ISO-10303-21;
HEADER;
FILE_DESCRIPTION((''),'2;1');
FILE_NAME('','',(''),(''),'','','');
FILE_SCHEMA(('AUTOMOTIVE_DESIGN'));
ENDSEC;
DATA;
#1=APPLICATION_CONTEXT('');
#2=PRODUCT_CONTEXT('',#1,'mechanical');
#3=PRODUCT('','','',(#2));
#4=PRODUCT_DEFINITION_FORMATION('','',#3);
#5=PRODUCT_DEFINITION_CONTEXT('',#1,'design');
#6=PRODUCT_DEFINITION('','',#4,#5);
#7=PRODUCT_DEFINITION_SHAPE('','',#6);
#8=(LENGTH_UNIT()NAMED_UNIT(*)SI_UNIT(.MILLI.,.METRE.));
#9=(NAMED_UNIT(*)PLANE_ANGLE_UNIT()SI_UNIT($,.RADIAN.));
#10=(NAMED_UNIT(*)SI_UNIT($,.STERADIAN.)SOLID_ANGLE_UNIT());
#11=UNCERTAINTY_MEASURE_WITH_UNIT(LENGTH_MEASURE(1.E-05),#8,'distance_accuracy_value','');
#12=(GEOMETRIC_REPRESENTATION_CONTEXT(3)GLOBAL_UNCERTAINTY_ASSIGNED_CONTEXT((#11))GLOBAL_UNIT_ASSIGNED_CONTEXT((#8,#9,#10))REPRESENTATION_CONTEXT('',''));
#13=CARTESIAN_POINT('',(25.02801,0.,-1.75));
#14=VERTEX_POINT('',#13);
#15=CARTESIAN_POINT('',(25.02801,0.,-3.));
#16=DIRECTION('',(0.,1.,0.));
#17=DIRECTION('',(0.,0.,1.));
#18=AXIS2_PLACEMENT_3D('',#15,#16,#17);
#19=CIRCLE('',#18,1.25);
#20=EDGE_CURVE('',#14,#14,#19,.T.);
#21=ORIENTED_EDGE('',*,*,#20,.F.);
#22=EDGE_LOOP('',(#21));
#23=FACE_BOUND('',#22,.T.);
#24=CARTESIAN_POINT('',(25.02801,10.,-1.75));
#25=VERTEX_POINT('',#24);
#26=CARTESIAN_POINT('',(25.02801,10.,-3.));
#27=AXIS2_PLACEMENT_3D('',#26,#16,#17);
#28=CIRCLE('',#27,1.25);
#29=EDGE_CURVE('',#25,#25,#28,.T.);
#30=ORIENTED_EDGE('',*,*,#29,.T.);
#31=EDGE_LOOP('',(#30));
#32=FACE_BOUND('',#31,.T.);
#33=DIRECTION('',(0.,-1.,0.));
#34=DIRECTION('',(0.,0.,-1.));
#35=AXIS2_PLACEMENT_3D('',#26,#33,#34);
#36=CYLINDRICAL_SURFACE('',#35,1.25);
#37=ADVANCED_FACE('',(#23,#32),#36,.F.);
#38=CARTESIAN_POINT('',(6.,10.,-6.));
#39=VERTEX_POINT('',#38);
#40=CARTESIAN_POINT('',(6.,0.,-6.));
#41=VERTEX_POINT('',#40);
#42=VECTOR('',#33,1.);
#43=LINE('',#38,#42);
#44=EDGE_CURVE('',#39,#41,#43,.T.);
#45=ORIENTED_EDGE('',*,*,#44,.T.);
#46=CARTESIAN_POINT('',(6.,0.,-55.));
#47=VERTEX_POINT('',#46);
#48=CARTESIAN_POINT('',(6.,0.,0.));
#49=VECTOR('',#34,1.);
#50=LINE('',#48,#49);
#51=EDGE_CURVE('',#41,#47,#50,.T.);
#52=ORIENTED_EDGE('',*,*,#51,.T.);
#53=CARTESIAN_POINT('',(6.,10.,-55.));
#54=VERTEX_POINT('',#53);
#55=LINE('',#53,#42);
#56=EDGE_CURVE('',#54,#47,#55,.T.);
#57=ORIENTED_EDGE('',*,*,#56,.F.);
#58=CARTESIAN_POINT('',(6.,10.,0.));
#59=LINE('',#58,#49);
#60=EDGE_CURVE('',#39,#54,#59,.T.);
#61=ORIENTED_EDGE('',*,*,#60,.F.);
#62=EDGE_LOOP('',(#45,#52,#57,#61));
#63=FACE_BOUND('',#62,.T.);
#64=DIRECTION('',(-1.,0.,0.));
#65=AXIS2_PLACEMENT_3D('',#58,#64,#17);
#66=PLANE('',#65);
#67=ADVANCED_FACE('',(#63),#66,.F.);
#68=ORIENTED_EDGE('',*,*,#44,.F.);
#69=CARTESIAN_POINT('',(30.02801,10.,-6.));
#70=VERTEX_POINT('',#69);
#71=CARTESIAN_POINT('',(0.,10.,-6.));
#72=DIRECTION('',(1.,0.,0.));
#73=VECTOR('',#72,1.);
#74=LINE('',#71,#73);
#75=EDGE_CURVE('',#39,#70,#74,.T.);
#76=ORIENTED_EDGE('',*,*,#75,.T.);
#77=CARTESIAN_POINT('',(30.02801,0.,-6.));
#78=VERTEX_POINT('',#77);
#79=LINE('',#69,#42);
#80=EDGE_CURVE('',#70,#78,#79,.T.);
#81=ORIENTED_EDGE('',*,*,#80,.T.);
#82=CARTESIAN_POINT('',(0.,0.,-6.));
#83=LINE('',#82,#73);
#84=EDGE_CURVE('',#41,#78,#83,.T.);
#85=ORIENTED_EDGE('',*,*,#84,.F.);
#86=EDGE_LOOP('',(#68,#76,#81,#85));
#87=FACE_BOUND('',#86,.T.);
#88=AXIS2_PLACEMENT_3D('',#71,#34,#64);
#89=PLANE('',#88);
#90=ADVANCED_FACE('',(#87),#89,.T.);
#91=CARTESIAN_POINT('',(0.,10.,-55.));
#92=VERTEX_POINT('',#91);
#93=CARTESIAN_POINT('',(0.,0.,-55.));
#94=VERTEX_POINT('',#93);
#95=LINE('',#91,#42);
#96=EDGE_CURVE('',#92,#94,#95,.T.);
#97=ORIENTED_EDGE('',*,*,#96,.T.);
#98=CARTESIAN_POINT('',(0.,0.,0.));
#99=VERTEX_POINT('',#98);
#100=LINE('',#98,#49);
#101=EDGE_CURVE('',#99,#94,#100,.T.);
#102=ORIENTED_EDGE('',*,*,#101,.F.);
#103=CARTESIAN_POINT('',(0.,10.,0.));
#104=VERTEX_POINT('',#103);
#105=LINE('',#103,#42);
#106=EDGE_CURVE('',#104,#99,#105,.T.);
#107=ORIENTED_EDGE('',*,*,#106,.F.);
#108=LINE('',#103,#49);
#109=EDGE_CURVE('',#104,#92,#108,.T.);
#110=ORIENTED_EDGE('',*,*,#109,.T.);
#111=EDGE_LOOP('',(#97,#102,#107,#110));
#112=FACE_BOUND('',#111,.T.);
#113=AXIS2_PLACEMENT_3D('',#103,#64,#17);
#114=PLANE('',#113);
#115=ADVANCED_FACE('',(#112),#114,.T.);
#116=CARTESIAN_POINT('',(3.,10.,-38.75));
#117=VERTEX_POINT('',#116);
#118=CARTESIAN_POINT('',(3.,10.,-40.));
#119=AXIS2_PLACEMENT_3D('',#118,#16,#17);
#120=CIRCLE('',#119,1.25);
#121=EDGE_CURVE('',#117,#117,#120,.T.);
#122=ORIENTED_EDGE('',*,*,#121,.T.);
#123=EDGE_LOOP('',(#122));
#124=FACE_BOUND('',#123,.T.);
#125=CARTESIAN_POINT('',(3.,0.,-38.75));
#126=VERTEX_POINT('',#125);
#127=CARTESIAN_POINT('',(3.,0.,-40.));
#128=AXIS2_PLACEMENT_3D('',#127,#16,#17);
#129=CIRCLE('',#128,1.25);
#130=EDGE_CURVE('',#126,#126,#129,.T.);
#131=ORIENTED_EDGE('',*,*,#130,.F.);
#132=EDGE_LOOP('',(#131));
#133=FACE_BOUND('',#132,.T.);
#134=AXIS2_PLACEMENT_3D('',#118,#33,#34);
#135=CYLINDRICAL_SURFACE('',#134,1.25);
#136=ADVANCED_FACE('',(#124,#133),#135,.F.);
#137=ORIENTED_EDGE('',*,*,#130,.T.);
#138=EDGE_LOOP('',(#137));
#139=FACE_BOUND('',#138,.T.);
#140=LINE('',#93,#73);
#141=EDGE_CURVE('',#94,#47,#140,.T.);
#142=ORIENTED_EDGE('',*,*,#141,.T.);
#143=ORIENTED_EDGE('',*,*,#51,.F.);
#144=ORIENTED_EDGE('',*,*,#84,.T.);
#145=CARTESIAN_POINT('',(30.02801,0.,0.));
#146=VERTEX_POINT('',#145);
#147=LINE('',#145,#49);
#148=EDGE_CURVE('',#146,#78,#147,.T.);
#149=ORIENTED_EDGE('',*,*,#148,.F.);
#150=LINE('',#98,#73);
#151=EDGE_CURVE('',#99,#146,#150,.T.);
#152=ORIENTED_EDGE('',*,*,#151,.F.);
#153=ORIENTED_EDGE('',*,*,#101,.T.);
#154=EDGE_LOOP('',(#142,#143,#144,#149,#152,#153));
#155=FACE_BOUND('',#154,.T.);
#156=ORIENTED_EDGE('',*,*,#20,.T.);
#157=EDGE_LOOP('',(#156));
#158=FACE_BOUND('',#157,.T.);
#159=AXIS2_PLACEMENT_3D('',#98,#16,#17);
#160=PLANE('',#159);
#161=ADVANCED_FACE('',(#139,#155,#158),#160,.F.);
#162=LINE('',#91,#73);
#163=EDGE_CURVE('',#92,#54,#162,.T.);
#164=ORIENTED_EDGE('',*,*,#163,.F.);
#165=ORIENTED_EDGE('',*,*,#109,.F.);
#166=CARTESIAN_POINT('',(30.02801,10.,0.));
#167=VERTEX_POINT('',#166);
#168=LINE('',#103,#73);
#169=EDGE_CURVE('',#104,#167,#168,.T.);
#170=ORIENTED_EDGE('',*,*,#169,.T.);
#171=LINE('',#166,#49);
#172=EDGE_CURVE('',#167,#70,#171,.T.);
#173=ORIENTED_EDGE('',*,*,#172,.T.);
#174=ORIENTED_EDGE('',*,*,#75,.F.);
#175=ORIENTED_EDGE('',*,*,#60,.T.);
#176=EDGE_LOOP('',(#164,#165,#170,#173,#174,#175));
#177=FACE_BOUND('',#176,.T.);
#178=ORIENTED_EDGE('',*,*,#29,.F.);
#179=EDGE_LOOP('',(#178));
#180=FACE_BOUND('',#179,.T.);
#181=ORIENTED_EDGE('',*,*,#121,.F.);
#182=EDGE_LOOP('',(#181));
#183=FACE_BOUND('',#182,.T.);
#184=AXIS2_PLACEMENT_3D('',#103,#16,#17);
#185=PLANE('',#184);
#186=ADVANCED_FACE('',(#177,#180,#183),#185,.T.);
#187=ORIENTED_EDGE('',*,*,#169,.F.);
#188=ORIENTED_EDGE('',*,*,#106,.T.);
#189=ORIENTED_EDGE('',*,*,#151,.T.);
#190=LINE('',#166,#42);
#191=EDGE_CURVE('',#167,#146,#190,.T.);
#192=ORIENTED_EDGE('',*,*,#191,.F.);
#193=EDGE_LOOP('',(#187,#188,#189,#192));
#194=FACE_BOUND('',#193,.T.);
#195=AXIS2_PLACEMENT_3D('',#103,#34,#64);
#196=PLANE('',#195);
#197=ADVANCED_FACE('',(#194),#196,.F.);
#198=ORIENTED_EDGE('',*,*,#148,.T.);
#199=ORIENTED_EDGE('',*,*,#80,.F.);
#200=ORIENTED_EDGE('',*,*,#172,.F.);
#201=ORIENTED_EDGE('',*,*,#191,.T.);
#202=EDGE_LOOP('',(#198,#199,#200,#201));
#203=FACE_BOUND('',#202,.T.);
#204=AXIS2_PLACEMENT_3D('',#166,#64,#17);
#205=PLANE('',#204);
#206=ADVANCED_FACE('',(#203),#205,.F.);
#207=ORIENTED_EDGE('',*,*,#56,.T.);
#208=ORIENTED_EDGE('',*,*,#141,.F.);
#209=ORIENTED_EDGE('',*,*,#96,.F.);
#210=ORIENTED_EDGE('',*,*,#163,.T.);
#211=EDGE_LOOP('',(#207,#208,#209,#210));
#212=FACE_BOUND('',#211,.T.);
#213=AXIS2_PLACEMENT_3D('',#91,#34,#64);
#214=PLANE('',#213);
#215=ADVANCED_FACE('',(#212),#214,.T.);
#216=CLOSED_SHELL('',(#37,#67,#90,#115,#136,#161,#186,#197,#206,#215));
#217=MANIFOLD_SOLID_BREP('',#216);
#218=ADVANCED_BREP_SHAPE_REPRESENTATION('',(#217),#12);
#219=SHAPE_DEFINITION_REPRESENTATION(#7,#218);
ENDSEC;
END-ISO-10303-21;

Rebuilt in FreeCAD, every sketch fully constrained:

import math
import FreeCAD as App
import Part
import Sketcher
from FreeCAD import Vector
Q = App.Units.Quantity


def add_polygon(sketch, points):
    """Adds a closed chain of lines whose ends are joined by coincident constraints."""
    first, n = sketch.GeometryCount, len(points)
    for a, b in zip(points, points[1:] + points[:1]):
        sketch.addGeometry(Part.LineSegment(App.Vector(*a, 0), App.Vector(*b, 0)), False)
    for i in range(n):
        sketch.addConstraint(Sketcher.Constraint("Coincident", first + i, 2, first + (i + 1) % n, 1))

doc = App.newDocument("Part")
body = doc.addObject("PartDesign::Body", "Body")

# Sketch on XZ plane
sketch1 = doc.addObject("Sketcher::SketchObject", "Sketch")
body.addObject(sketch1)
sketch1.AttachmentSupport = (doc.XZ_Plane, [""])
sketch1.MapMode = "FlatFace"
add_polygon(sketch1, [(6, -55), (0, -55), (0, 0), (30, 0), (30, -6), (6, -6)])  # lines 0-5
sketch1.addGeometry(Part.ArcOfCircle(Part.Circle(Vector(3, -40, 0), Vector(0, 0, 1), 1.3), math.radians(-90), math.radians(0)), False)  # 6
sketch1.addGeometry(Part.ArcOfCircle(Part.Circle(Vector(3, -40, 0), Vector(0, 0, 1), 1.2), math.radians(0), math.radians(270)), False)  # 7
sketch1.addGeometry(Part.Circle(Vector(25, -3, 0), Vector(0, 0, 1), 1.2), False)  # 8
sketch1.addConstraint([
    Sketcher.Constraint("Tangent", 6, 1, 7, 2),
    Sketcher.Constraint("Coincident", 7, 1, 6, 2),
    Sketcher.Constraint("Horizontal", 0),
    Sketcher.Constraint("Vertical", 1),
    Sketcher.Constraint("Horizontal", 2),
    Sketcher.Constraint("Vertical", 3),
    Sketcher.Constraint("Horizontal", 4),
    Sketcher.Constraint("Vertical", 5),
    Sketcher.Constraint("Coincident", 1, 2, -1, 1),
    Sketcher.Constraint("Equal", 7, 8),
    Sketcher.Constraint("Horizontal", 6, 3, 7, 1),
    Sketcher.Constraint("Vertical", 7, 3, 6, 1),
    Sketcher.Constraint("Equal", 0, 3),
    Sketcher.Constraint("Diameter", 8, Q("2.5 mm")),
    Sketcher.Constraint("DistanceX", 0, 2, 0, 1, Q("6 mm")),
    Sketcher.Constraint("DistanceY", 1, 1, 1, 2, Q("55 mm")),
    Sketcher.Constraint("DistanceX", -1, 1, 6, 3, Q("3 mm")),
    Sketcher.Constraint("DistanceY", 6, 3, -1, 1, Q("40 mm")),
    Sketcher.Constraint("DistanceY", 8, 3, -1, 1, Q("3 mm")),
    Sketcher.Constraint("DistanceX", 8, 3, 2, 2, Q("5 mm")),
    Sketcher.Constraint("DistanceX", 2, 1, 2, 2, Q("30.02801 mm")),
])
pad1 = doc.addObject("PartDesign::Pad", "Pad")
body.addObject(pad1)
pad1.Profile = sketch1
pad1.Length = 10
pad1.Reversed = True

doc.recompute()
